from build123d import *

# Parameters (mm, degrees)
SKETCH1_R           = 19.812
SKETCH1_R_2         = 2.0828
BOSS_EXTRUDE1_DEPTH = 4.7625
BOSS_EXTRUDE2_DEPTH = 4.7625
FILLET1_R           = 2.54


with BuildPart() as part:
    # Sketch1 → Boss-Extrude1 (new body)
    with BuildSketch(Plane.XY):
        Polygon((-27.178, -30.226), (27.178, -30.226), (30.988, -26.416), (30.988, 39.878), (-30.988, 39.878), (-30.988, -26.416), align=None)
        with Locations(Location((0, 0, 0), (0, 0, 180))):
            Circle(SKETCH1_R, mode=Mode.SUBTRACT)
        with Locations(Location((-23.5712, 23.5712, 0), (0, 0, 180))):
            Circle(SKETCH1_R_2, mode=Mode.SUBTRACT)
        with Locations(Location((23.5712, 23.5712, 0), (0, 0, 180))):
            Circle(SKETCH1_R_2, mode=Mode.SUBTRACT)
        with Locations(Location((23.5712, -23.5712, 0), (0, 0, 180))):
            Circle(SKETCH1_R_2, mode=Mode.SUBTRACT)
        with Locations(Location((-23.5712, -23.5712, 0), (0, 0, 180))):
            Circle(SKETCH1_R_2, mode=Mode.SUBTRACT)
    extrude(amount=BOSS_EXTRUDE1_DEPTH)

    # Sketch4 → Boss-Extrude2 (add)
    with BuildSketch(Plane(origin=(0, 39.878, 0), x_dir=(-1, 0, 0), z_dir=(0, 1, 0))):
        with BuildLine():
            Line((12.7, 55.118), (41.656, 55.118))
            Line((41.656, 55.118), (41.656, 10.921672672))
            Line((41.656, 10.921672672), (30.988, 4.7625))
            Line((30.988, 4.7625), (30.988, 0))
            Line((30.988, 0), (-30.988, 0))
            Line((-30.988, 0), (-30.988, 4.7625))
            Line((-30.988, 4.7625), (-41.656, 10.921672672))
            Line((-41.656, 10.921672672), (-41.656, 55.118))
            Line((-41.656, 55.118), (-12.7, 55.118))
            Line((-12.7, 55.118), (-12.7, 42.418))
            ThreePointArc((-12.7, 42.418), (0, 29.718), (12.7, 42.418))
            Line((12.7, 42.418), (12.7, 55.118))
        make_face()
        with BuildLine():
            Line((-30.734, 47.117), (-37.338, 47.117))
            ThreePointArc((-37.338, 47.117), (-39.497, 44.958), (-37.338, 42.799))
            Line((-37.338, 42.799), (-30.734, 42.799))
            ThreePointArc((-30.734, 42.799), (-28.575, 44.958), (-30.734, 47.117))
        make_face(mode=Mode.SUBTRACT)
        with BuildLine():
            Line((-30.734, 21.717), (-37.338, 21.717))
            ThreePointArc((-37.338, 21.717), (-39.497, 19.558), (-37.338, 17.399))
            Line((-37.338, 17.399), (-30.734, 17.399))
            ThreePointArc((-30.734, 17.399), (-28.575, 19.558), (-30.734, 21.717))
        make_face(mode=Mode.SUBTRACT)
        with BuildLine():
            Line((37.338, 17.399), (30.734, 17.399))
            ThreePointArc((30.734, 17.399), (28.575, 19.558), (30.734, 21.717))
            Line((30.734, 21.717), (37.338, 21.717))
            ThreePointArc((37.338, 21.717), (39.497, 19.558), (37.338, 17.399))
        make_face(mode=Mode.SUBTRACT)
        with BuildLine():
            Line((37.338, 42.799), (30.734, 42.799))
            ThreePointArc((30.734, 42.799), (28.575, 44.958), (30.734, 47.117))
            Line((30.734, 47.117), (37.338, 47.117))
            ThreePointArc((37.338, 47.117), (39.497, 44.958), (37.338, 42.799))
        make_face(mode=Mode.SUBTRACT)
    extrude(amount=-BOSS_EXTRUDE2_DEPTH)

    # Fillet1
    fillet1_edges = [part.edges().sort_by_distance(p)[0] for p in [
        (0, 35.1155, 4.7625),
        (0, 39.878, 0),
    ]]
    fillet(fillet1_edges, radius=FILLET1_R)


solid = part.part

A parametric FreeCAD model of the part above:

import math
import FreeCAD as App
import Part
import Sketcher
Q = App.Units.Quantity


def edges_at(feature, points):
    """Names of the edges that pass closest to the given points."""
    edges = feature.Shape.Edges
    near = lambda p: min(range(len(edges)), key=lambda i: edges[i].distToShape(Part.Vertex(*p))[0])
    return sorted({f"Edge{near(p) + 1}" for p in points})


def add_polygon(sketch, points):
    """Adds a closed chain of lines whose ends are joined by coincident constraints."""
    first, n = sketch.GeometryCount, len(points)
    for a, b in zip(points, points[1:] + points[:1]):
        sketch.addGeometry(Part.LineSegment(App.Vector(*a, 0), App.Vector(*b, 0)), False)
    for i in range(n):
        sketch.addConstraint(Sketcher.Constraint("Coincident", first + i, 2, first + (i + 1) % n, 1))

doc = App.newDocument("Part")
body = doc.addObject("PartDesign::Body", "Body")

# Sketch on XY plane
sketch1 = body.newObject("Sketcher::SketchObject", "Sketch")
sketch1.AttachmentSupport = (doc.getObject("XY_Plane"), [""])
sketch1.MapMode = "FlatFace"
add_polygon(sketch1, [(-27.2, -30.2), (27.2, -30.2), (31, -26.4), (31, 39.9), (-31, 39.9), (-31, -26.4)])  # lines 0-5
sketch1.addGeometry(Part.Circle(App.Vector(-23.6, -23.6, 0), App.Vector(0, 0, 1), 2.1), False)  # 6
sketch1.addGeometry(Part.Circle(App.Vector(0, 0, 0), App.Vector(0, 0, 1), 19.8), False)  # 7
sketch1.addGeometry(Part.Circle(App.Vector(23.6, -23.6, 0), App.Vector(0, 0, 1), 2.1), False)  # 8
sketch1.addGeometry(Part.Circle(App.Vector(-23.6, 23.6, 0), App.Vector(0, 0, 1), 2.1), False)  # 9
sketch1.addGeometry(Part.Circle(App.Vector(23.6, 23.6, 0), App.Vector(0, 0, 1), 2.1), False)  # 10
sketch1.addConstraint([
    Sketcher.Constraint("Horizontal", 0),
    Sketcher.Constraint("Vertical", 2),
    Sketcher.Constraint("Horizontal", 3),
    Sketcher.Constraint("Vertical", 4),
    Sketcher.Constraint("Coincident", 7, 3, -1, 1),
    Sketcher.Constraint("Equal", 6, 8),
    Sketcher.Constraint("Equal", 8, 9),
    Sketcher.Constraint("Equal", 9, 10),
    Sketcher.Constraint("Symmetric", 8, 3, 9, 3, -1, 1),
    Sketcher.Constraint("Symmetric", 6, 3, 10, 3, -1, 1),
    Sketcher.Constraint("Symmetric", 6, 3, 8, 3, -2),
    Sketcher.Constraint("Symmetric", 1, 2, 4, 2, -2),
    Sketcher.Constraint("Perpendicular", 1, 5),
    Sketcher.Constraint("Equal", 1, 5),
    Sketcher.Constraint("Diameter", 7, Q("1.56 in")),
    Sketcher.Constraint("Diameter", 6, Q("0.164 in")),
    Sketcher.Constraint("DistanceX", 0, 1, 0, 2, Q("2.14 in")),
    Sketcher.Constraint("DistanceX", 3, 2, 3, 1, Q("2.44 in")),
    Sketcher.Constraint("DistanceY", 2, 1, 2, 2, Q("2.61 in")),
    Sketcher.Constraint("DistanceY", 0, 2, -1, 1, Q("1.19 in")),
    Sketcher.Constraint("DistanceX", 6, 3, -1, 1, Q("0.928 in")),
    Sketcher.Constraint("DistanceY", 6, 3, -1, 1, Q("0.928 in")),
])
pad1 = body.newObject("PartDesign::Pad", "Pad")
pad1.Profile = sketch1
pad1.Length = Q("0.1875 in")

# Sketch on XZ plane
sketch2 = body.newObject("Sketcher::SketchObject", "Sketch001")
sketch2.AttachmentSupport = (doc.getObject("XZ_Plane"), [""])
sketch2.MapMode = "FlatFace"
sketch2.AttachmentOffset = App.Placement(App.Vector(0, 0, -1.57 * 25.4), App.Rotation())
sketch2.addGeometry([
    Part.LineSegment(App.Vector(-41.7, 55.1, 0), App.Vector(-12.7, 55.1, 0)),  # 0
    Part.LineSegment(App.Vector(-12.7, 55.1, 0), App.Vector(-12.7, 42.4, 0)),  # 1
    Part.ArcOfCircle(Part.Circle(App.Vector(0, 42.4, 0), App.Vector(0, 0, 1), 12.7), math.radians(180), math.radians(360)),  # 2
    Part.LineSegment(App.Vector(12.7, 42.4, 0), App.Vector(12.7, 55.1, 0)),  # 3
    Part.LineSegment(App.Vector(12.7, 55.1, 0), App.Vector(41.7, 55.1, 0)),  # 4
    Part.LineSegment(App.Vector(41.7, 55.1, 0), App.Vector(41.7, 10.9, 0)),  # 5
    Part.LineSegment(App.Vector(41.7, 10.9, 0), App.Vector(31, 4.8, 0)),  # 6
    Part.LineSegment(App.Vector(31, 4.8, 0), App.Vector(31, 0, 0)),  # 7
    Part.LineSegment(App.Vector(31, 0, 0), App.Vector(-31, 0, 0)),  # 8
    Part.LineSegment(App.Vector(-31, 0, 0), App.Vector(-31, 4.8, 0)),  # 9
    Part.LineSegment(App.Vector(-31, 4.8, 0), App.Vector(-41.7, 10.9, 0)),  # 10
    Part.LineSegment(App.Vector(-41.7, 10.9, 0), App.Vector(-41.7, 55.1, 0)),  # 11
    Part.LineSegment(App.Vector(-37.3, 17.4, 0), App.Vector(-30.7, 17.4, 0)),  # 12
    Part.ArcOfCircle(Part.Circle(App.Vector(-30.7, 19.6, 0), App.Vector(0, 0, 1), 2.2), math.radians(-90), math.radians(90)),  # 13
    Part.LineSegment(App.Vector(-30.7, 21.7, 0), App.Vector(-37.3, 21.7, 0)),  # 14
    Part.ArcOfCircle(Part.Circle(App.Vector(-37.3, 19.6, 0), App.Vector(0, 0, 1), 2.2), math.radians(90), math.radians(270)),  # 15
    Part.ArcOfCircle(Part.Circle(App.Vector(30.7, 19.6, 0), App.Vector(0, 0, 1), 2.2), math.radians(90), math.radians(270)),  # 16
    Part.LineSegment(App.Vector(30.7, 17.4, 0), App.Vector(37.3, 17.4, 0)),  # 17
    Part.ArcOfCircle(Part.Circle(App.Vector(37.3, 19.6, 0), App.Vector(0, 0, 1), 2.2), math.radians(-90), math.radians(90)),  # 18
    Part.LineSegment(App.Vector(37.3, 21.7, 0), App.Vector(30.7, 21.7, 0)),  # 19
    Part.LineSegment(App.Vector(-37.3, 42.8, 0), App.Vector(-30.7, 42.8, 0)),  # 20
    Part.ArcOfCircle(Part.Circle(App.Vector(-30.7, 45, 0), App.Vector(0, 0, 1), 2.2), math.radians(-90), math.radians(90)),  # 21
    Part.LineSegment(App.Vector(-30.7, 47.1, 0), App.Vector(-37.3, 47.1, 0)),  # 22
    Part.ArcOfCircle(Part.Circle(App.Vector(-37.3, 45, 0), App.Vector(0, 0, 1), 2.2), math.radians(90), math.radians(270)),  # 23
    Part.ArcOfCircle(Part.Circle(App.Vector(30.7, 45, 0), App.Vector(0, 0, 1), 2.2), math.radians(90), math.radians(270)),  # 24
    Part.LineSegment(App.Vector(30.7, 42.8, 0), App.Vector(37.3, 42.8, 0)),  # 25
    Part.ArcOfCircle(Part.Circle(App.Vector(37.3, 45, 0), App.Vector(0, 0, 1), 2.2), math.radians(-90), math.radians(90)),  # 26
    Part.LineSegment(App.Vector(37.3, 47.1, 0), App.Vector(30.7, 47.1, 0)),  # 27
], False)
sketch2.addConstraint([
    Sketcher.Constraint("Coincident", 0, 2, 1, 1),
    Sketcher.Constraint("Tangent", 1, 2, 2, 1),
    Sketcher.Constraint("Tangent", 2, 2, 3, 1),
    Sketcher.Constraint("Coincident", 3, 2, 4, 1),
    Sketcher.Constraint("Coincident", 4, 2, 5, 1),
    Sketcher.Constraint("Coincident", 5, 2, 6, 1),
    Sketcher.Constraint("Coincident", 6, 2, 7, 1),
    Sketcher.Constraint("Coincident", 7, 2, 8, 1),
    Sketcher.Constraint("Coincident", 8, 2, 9, 1),
    Sketcher.Constraint("Coincident", 9, 2, 10, 1),
    Sketcher.Constraint("Coincident", 10, 2, 11, 1),
    Sketcher.Constraint("Coincident", 11, 2, 0, 1),
    Sketcher.Constraint("Tangent", 12, 2, 13, 1),
    Sketcher.Constraint("Tangent", 13, 2, 14, 1),
    Sketcher.Constraint("Tangent", 14, 2, 15, 1),
    Sketcher.Constraint("Tangent", 15, 2, 12, 1),
    Sketcher.Constraint("Tangent", 16, 2, 17, 1),
    Sketcher.Constraint("Tangent", 17, 2, 18, 1),
    Sketcher.Constraint("Tangent", 18, 2, 19, 1),
    Sketcher.Constraint("Tangent", 19, 2, 16, 1),
    Sketcher.Constraint("Tangent", 20, 2, 21, 1),
    Sketcher.Constraint("Tangent", 21, 2, 22, 1),
    Sketcher.Constraint("Tangent", 22, 2, 23, 1),
    Sketcher.Constraint("Tangent", 23, 2, 20, 1),
    Sketcher.Constraint("Tangent", 24, 2, 25, 1),
    Sketcher.Constraint("Tangent", 25, 2, 26, 1),
    Sketcher.Constraint("Tangent", 26, 2, 27, 1),
    Sketcher.Constraint("Tangent", 27, 2, 24, 1),
    Sketcher.Constraint("Horizontal", 0),
    Sketcher.Constraint("Vertical", 1),
    Sketcher.Constraint("Vertical", 3),
    Sketcher.Constraint("Horizontal", 4),
    Sketcher.Constraint("Vertical", 5),
    Sketcher.Constraint("Vertical", 7),
    Sketcher.Constraint("Horizontal", 8),
    Sketcher.Constraint("Vertical", 9),
    Sketcher.Constraint("Vertical", 11),
    Sketcher.Constraint("Horizontal", 12),
    Sketcher.Constraint("Horizontal", 14),
    Sketcher.Constraint("Horizontal", 17),
    Sketcher.Constraint("Horizontal", 19),
    Sketcher.Constraint("Horizontal", 20),
    Sketcher.Constraint("Horizontal", 22),
    Sketcher.Constraint("Horizontal", 25),
    Sketcher.Constraint("Horizontal", 27),
    Sketcher.Constraint("Equal", 15, 16),
    Sketcher.Constraint("Equal", 18, 21),
    Sketcher.Constraint("Equal", 23, 24),
    Sketcher.Constraint("Symmetric", 7, 2, 8, 2, -1, 1),
    Sketcher.Constraint("Symmetric", 13, 3, 16, 3, -2),
    Sketcher.Constraint("Symmetric", 21, 3, 24, 3, -2),
    Sketcher.Constraint("Symmetric", 0, 2, 3, 2, -2),
    Sketcher.Constraint("Symmetric", 5, 2, 10, 2, -2),
    Sketcher.Constraint("Horizontal", 6, 2, 9, 2),
    Sketcher.Constraint("Vertical", 13, 3, 21, 3),
    Sketcher.Constraint("Vertical", 15, 3, 23, 3),
    Sketcher.Constraint("Vertical", 18, 3, 26, 3),
    Sketcher.Constraint("Equal", 14, 17),
    Sketcher.Constraint("Radius", 2, Q("0.5 in")),
    Sketcher.Constraint("DistanceY", 1, 2, 1, 1, Q("0.5 in")),
    Sketcher.Constraint("Angle", 6, Q("-150 deg")),
    Sketcher.Constraint("Radius", 13, Q("0.085 in")),
    Sketcher.Constraint("DistanceY", 13, 3, 21, 3, Q("1 in")),
    Sketcher.Constraint("DistanceX", 0, 1, 0, 2, Q("1.14 in")),
    Sketcher.Constraint("DistanceX", 8, 2, 8, 1, Q("2.44 in")),
    Sketcher.Constraint("DistanceX", 12, 1, 12, 2, Q("0.26 in")),
    Sketcher.Constraint("DistanceY", 13, 3, 2, 3, Q("0.9 in")),
    Sketcher.Constraint("DistanceY", 7, 2, 7, 1, Q("0.1875 in")),
    Sketcher.Constraint("DistanceY", -1, 1, 2, 3, Q("1.67 in")),
    Sketcher.Constraint("DistanceX", 13, 3, -1, 1, Q("1.21 in")),
])
pad2 = body.newObject("PartDesign::Pad", "Pad001")
pad2.Profile = sketch2
pad2.Length = Q("0.1875 in")
doc.recompute()

fillet = body.newObject("PartDesign::Fillet", "Fillet")
fillet.Base = (pad2, edges_at(pad2, [(0, 35.115, 4.763), (0, 39.878, 0)]))
fillet.Radius = Q("0.1 in")

doc.recompute()
